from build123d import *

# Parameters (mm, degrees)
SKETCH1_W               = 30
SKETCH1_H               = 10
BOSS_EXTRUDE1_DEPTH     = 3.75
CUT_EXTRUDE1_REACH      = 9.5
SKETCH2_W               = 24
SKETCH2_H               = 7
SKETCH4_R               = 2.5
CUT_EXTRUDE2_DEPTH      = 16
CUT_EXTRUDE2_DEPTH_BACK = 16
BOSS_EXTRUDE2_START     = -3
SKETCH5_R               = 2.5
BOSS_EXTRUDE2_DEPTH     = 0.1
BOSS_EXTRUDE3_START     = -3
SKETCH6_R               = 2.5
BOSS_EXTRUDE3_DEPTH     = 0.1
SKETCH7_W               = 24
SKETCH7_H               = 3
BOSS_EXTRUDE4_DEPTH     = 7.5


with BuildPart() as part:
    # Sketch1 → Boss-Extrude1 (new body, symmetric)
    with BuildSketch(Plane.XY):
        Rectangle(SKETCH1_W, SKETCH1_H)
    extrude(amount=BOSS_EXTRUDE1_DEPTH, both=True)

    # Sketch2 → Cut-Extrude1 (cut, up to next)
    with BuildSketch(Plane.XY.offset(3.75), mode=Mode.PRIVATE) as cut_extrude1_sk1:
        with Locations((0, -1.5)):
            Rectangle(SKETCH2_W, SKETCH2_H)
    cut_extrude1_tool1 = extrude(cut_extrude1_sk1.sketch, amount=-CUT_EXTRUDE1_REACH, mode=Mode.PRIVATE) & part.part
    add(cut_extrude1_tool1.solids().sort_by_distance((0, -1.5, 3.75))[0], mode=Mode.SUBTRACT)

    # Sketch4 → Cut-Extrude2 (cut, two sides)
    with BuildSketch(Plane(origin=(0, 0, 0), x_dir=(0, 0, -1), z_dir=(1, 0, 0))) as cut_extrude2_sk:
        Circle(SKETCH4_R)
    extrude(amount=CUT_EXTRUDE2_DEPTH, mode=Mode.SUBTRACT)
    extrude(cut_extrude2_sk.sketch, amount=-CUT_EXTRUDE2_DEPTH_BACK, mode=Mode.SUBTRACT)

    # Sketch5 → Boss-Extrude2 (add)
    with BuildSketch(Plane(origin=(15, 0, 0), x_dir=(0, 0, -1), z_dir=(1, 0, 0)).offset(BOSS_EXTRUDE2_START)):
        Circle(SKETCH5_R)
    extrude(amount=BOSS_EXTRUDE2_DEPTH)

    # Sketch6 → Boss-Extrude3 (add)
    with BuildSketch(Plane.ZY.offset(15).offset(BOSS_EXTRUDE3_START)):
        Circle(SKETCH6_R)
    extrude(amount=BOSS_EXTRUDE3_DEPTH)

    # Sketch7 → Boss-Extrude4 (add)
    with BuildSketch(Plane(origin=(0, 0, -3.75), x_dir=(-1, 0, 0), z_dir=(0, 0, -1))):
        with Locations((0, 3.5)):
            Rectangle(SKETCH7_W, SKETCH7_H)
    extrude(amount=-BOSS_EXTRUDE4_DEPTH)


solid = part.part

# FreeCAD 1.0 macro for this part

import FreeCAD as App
import Part
import Sketcher

V = App.Vector


def add_polygon(sketch, points):
    """Adds a closed chain of lines whose ends are joined by coincident constraints."""
    first, n = sketch.GeometryCount, len(points)
    for a, b in zip(points, points[1:] + points[:1]):
        sketch.addGeometry(Part.LineSegment(App.Vector(*a, 0), App.Vector(*b, 0)), False)
    for i in range(n):
        sketch.addConstraint(Sketcher.Constraint("Coincident", first + i, 2, first + (i + 1) % n, 1))

doc = App.newDocument("Part")
params = doc.addObject("Spreadsheet::Sheet", "Params")
for row, (alias, value) in enumerate([
    ("sketch1_width", "30 mm"),
    ("sketch1_height", "10 mm"),
    ("pad1_length", "7.5 mm"),
    ("sketch2_width", "24 mm"),
    ("sketch2_height", "7 mm"),
    ("sketch3_diameter", "5 mm"),
    ("sketch4_diameter", "5 mm"),
    ("pad2_length", "0.1 mm"),
    ("sketch5_diameter", "5 mm"),
    ("pad3_length", "0.1 mm"),
    ("sketch6_width", "24 mm"),
    ("sketch6_height", "3 mm"),
    ("pad4_length", "7.5 mm"),
], start=1):
    params.set(f"A{row}", alias)
    params.set(f"B{row}", "=" + value)
    params.setAlias(f"B{row}", alias)

body = doc.addObject("PartDesign::Body", "Body")

sketch1 = body.newObject("Sketcher::SketchObject", "Sketch")
sketch1.AttachmentSupport = (doc.getObject("XY_Plane"), [""])
sketch1.MapMode = "FlatFace"
add_polygon(sketch1, [(-15, 5), (-15, -5), (15, -5), (15, 5)])
sketch1.addConstraint([
    Sketcher.Constraint("Vertical", 0),
    Sketcher.Constraint("Horizontal", 1),
    Sketcher.Constraint("Vertical", 2),
    Sketcher.Constraint("Horizontal", 3),
    Sketcher.Constraint("Symmetric", 0, 2, 2, 2, -1, 1),
    Sketcher.Constraint("DistanceX", 1, 1, 1, 2, 30.0),
    Sketcher.Constraint("DistanceY", 0, 2, 0, 1, 10.0),
])
sketch1.setExpression("Constraints[9]", "Params.sketch1_width")
sketch1.setExpression("Constraints[10]", "Params.sketch1_height")
pad1 = body.newObject("PartDesign::Pad", "Pad")
pad1.Profile = sketch1
pad1.setExpression("Length", "Params.pad1_length")
pad1.Midplane = True

sketch2 = body.newObject("Sketcher::SketchObject", "Sketch001")
sketch2.AttachmentSupport = (doc.getObject("XY_Plane"), [""])
sketch2.MapMode = "FlatFace"
sketch2.AttachmentOffset = App.Placement(V(0, 0, 3.75), App.Rotation())
add_polygon(sketch2, [(-12, 2), (-12, -5), (12, -5), (12, 2)])
sketch2.addConstraint([
    Sketcher.Constraint("Vertical", 0),
    Sketcher.Constraint("Horizontal", 1),
    Sketcher.Constraint("Vertical", 2),
    Sketcher.Constraint("Horizontal", 3),
    Sketcher.Constraint("DistanceX", 1, 1, 1, 2, 24.0),
    Sketcher.Constraint("DistanceY", 0, 2, 0, 1, 7.0),
    Sketcher.Constraint("DistanceX", 0, 2, -1, 1, 12.0),
    Sketcher.Constraint("DistanceY", 0, 2, -1, 1, 5.0),
])
sketch2.setExpression("Constraints[8]", "Params.sketch2_width")
sketch2.setExpression("Constraints[9]", "Params.sketch2_height")
pocket1 = body.newObject("PartDesign::Pocket", "Pocket")
pocket1.Profile = sketch2
pocket1.Type = "UpToFirst"

sketch3 = body.newObject("Sketcher::SketchObject", "Sketch002")
sketch3.AttachmentSupport = (doc.getObject("YZ_Plane"), [""])
sketch3.MapMode = "FlatFace"
sketch3.addGeometry(Part.Circle(V(0, 0, 0), V(0, 0, 1), 2.5), False)
sketch3.addConstraint([
    Sketcher.Constraint("Coincident", 0, 3, -1, 1),
    Sketcher.Constraint("Diameter", 0, 5.0),
])
sketch3.setExpression("Constraints[1]", "Params.sketch3_diameter")
pocket2 = body.newObject("PartDesign::Pocket", "Pocket001")
pocket2.Profile = sketch3
pocket2.Type = "ThroughAll"
pocket2.Midplane = True

sketch4 = body.newObject("Sketcher::SketchObject", "Sketch003")
sketch4.AttachmentSupport = (doc.getObject("YZ_Plane"), [""])
sketch4.MapMode = "FlatFace"
sketch4.AttachmentOffset = App.Placement(V(0, 0, 12), App.Rotation())
sketch4.addGeometry(Part.Circle(V(0, 0, 0), V(0, 0, 1), 2.5), False)
sketch4.addConstraint([
    Sketcher.Constraint("Coincident", 0, 3, -1, 1),
    Sketcher.Constraint("Diameter", 0, 5.0),
])
sketch4.setExpression("Constraints[1]", "Params.sketch4_diameter")
pad2 = body.newObject("PartDesign::Pad", "Pad001")
pad2.Profile = sketch4
pad2.setExpression("Length", "Params.pad2_length")

sketch5 = body.newObject("Sketcher::SketchObject", "Sketch004")
sketch5.AttachmentSupport = (doc.getObject("YZ_Plane"), [""])
sketch5.MapMode = "FlatFace"
sketch5.AttachmentOffset = App.Placement(V(0, 0, -12), App.Rotation())
sketch5.addGeometry(Part.Circle(V(0, 0, 0), V(0, 0, 1), 2.5), False)
sketch5.addConstraint([
    Sketcher.Constraint("Coincident", 0, 3, -1, 1),
    Sketcher.Constraint("Diameter", 0, 5.0),
])
sketch5.setExpression("Constraints[1]", "Params.sketch5_diameter")
pad3 = body.newObject("PartDesign::Pad", "Pad002")
pad3.Profile = sketch5
pad3.setExpression("Length", "Params.pad3_length")
pad3.Reversed = True

sketch6 = body.newObject("Sketcher::SketchObject", "Sketch005")
sketch6.AttachmentSupport = (doc.getObject("XY_Plane"), [""])
sketch6.MapMode = "FlatFace"
sketch6.AttachmentOffset = App.Placement(V(0, 0, -3.75), App.Rotation())
add_polygon(sketch6, [(12, 5), (12, 2), (-12, 2), (-12, 5)])
sketch6.addConstraint([
    Sketcher.Constraint("Vertical", 0),
    Sketcher.Constraint("Horizontal", 1),
    Sketcher.Constraint("Vertical", 2),
    Sketcher.Constraint("Horizontal", 3),
    Sketcher.Constraint("DistanceX", 1, 2, 1, 1, 24.0),
    Sketcher.Constraint("DistanceY", 0, 2, 0, 1, 3.0),
    Sketcher.Constraint("DistanceX", -1, 1, 0, 2, 12.0),
    Sketcher.Constraint("DistanceY", -1, 1, 0, 2, 2.0),
])
sketch6.setExpression("Constraints[8]", "Params.sketch6_width")
sketch6.setExpression("Constraints[9]", "Params.sketch6_height")
pad4 = body.newObject("PartDesign::Pad", "Pad003")
pad4.Profile = sketch6
pad4.setExpression("Length", "Params.pad4_length")

doc.recompute()
